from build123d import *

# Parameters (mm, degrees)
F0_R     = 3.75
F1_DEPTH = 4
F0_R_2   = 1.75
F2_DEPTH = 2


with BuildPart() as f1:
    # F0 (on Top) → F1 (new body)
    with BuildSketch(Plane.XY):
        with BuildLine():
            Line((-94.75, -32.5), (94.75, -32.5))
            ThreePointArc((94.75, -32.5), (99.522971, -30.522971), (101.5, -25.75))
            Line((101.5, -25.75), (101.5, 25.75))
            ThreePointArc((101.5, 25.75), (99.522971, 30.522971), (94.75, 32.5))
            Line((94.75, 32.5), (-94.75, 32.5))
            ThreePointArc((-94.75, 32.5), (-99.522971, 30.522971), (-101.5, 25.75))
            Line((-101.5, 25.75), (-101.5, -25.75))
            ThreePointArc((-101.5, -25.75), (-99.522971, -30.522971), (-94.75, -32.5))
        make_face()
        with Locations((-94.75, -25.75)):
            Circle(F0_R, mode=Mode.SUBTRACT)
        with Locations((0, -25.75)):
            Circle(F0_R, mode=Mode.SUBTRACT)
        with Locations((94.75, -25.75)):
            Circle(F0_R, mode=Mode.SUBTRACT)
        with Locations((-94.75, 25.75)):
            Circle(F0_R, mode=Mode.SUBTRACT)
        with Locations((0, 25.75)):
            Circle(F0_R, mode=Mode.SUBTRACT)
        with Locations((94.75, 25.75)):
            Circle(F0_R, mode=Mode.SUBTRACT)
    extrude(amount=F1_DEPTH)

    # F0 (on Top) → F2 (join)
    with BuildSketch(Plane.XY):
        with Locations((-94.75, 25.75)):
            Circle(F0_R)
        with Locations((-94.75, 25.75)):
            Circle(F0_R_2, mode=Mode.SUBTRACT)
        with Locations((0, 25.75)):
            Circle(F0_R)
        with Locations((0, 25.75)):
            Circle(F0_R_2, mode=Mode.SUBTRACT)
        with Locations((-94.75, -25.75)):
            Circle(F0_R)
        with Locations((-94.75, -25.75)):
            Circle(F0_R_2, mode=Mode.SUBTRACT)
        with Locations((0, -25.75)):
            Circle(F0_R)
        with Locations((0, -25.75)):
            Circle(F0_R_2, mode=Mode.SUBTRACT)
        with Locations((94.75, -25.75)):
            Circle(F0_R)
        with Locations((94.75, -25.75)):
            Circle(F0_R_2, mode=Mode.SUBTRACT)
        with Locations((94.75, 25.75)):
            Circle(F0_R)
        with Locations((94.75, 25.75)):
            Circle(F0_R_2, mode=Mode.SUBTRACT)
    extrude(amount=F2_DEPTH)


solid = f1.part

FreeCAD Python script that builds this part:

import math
import FreeCAD as App
import Part
import Sketcher
from FreeCAD import Vector

doc = App.newDocument("Part")
body = doc.addObject("PartDesign::Body", "Body")

sketch1 = body.newObject("Sketcher::SketchObject", "Sketch")
sketch1.AttachmentSupport = (doc.getObject("XY_Plane"), [""])
sketch1.MapMode = "FlatFace"
sketch1.addGeometry([
    Part.LineSegment(Vector(-94.8, -32.5, 0), Vector(94.8, -32.5, 0)),
    Part.ArcOfCircle(Part.Circle(Vector(94.8, -25.8, 0), Vector(0, 0, 1), 6.7), math.radians(-90), math.radians(0)),
    Part.LineSegment(Vector(101.5, -25.8, 0), Vector(101.5, 25.8, 0)),
    Part.ArcOfCircle(Part.Circle(Vector(94.8, 25.8, 0), Vector(0, 0, 1), 6.7), math.radians(0), math.radians(90)),
    Part.LineSegment(Vector(94.8, 32.5, 0), Vector(-94.8, 32.5, 0)),
    Part.ArcOfCircle(Part.Circle(Vector(-94.8, 25.8, 0), Vector(0, 0, 1), 6.7), math.radians(90), math.radians(180)),
    Part.LineSegment(Vector(-101.5, 25.8, 0), Vector(-101.5, -25.8, 0)),
    Part.ArcOfCircle(Part.Circle(Vector(-94.8, -25.8, 0), Vector(0, 0, 1), 6.7), math.radians(180), math.radians(270)),
    Part.Circle(Vector(-94.8, -25.8, 0), Vector(0, 0, 1), 3.8),
    Part.Circle(Vector(0, -25.8, 0), Vector(0, 0, 1), 3.8),
    Part.Circle(Vector(94.8, -25.8, 0), Vector(0, 0, 1), 3.8),
    Part.Circle(Vector(-94.8, 25.8, 0), Vector(0, 0, 1), 3.8),
    Part.Circle(Vector(0, 25.8, 0), Vector(0, 0, 1), 3.8),
    Part.Circle(Vector(94.8, 25.8, 0), Vector(0, 0, 1), 3.8),
], False)
sketch1.addConstraint([
    Sketcher.Constraint("Tangent", 0, 2, 1, 1),
    Sketcher.Constraint("Tangent", 1, 2, 2, 1),
    Sketcher.Constraint("Tangent", 2, 2, 3, 1),
    Sketcher.Constraint("Tangent", 3, 2, 4, 1),
    Sketcher.Constraint("Tangent", 4, 2, 5, 1),
    Sketcher.Constraint("Tangent", 5, 2, 6, 1),
    Sketcher.Constraint("Tangent", 6, 2, 7, 1),
    Sketcher.Constraint("Tangent", 7, 2, 0, 1),
    Sketcher.Constraint("Horizontal", 0),
    Sketcher.Constraint("Vertical", 2),
    Sketcher.Constraint("Horizontal", 4),
    Sketcher.Constraint("Vertical", 6),
    Sketcher.Constraint("Coincident", 8, 3, 7, 3),
    Sketcher.Constraint("Coincident", 10, 3, 1, 3),
    Sketcher.Constraint("Coincident", 11, 3, 5, 3),
    Sketcher.Constraint("Coincident", 13, 3, 3, 3),
    Sketcher.Constraint("Equal", 1, 3),
    Sketcher.Constraint("Equal", 3, 5),
    Sketcher.Constraint("Equal", 5, 7),
    Sketcher.Constraint("Equal", 8, 9),
    Sketcher.Constraint("Equal", 9, 10),
    Sketcher.Constraint("Equal", 10, 11),
    Sketcher.Constraint("Equal", 11, 12),
    Sketcher.Constraint("Equal", 12, 13),
    Sketcher.Constraint("Symmetric", 1, 3, 5, 3, -1, 1),
    Sketcher.Constraint("Symmetric", 9, 3, 12, 3, -1, 1),
    Sketcher.Constraint("PointOnObject", 9, 3, -2),
    Sketcher.Constraint("Horizontal", 8, 3, 9, 3),
    Sketcher.Constraint("Diameter", 8, 7.5),
    Sketcher.Constraint("Radius", 1, 6.749999),
    Sketcher.Constraint("DistanceX", 0, 1, 0, 2, 189.5),
    Sketcher.Constraint("DistanceY", 2, 1, 2, 2, 51.5),
])
pad1 = body.newObject("PartDesign::Pad", "Pad")
pad1.Profile = sketch1
pad1.Length = 4

sketch2 = body.newObject("Sketcher::SketchObject", "Sketch001")
sketch2.AttachmentSupport = (doc.getObject("XY_Plane"), [""])
sketch2.MapMode = "FlatFace"
sketch2.addGeometry([
    Part.Circle(Vector(-94.8, 25.8, 0), Vector(0, 0, 1), 3.8),
    Part.Circle(Vector(-94.8, 25.8, 0), Vector(0, 0, 1), 1.8),
    Part.Circle(Vector(0, 25.8, 0), Vector(0, 0, 1), 3.8),
    Part.Circle(Vector(0, 25.8, 0), Vector(0, 0, 1), 1.8),
    Part.Circle(Vector(-94.8, -25.8, 0), Vector(0, 0, 1), 3.8),
    Part.Circle(Vector(-94.8, -25.8, 0), Vector(0, 0, 1), 1.8),
    Part.Circle(Vector(0, -25.8, 0), Vector(0, 0, 1), 3.8),
    Part.Circle(Vector(0, -25.8, 0), Vector(0, 0, 1), 1.8),
    Part.Circle(Vector(94.8, -25.8, 0), Vector(0, 0, 1), 3.8),
    Part.Circle(Vector(94.8, -25.8, 0), Vector(0, 0, 1), 1.8),
    Part.Circle(Vector(94.8, 25.8, 0), Vector(0, 0, 1), 3.8),
    Part.Circle(Vector(94.8, 25.8, 0), Vector(0, 0, 1), 1.8),
], False)
sketch2.addConstraint([
    Sketcher.Constraint("Coincident", 1, 3, 0, 3),
    Sketcher.Constraint("Coincident", 3, 3, 2, 3),
    Sketcher.Constraint("Coincident", 5, 3, 4, 3),
    Sketcher.Constraint("Coincident", 7, 3, 6, 3),
    Sketcher.Constraint("Coincident", 9, 3, 8, 3),
    Sketcher.Constraint("Coincident", 11, 3, 10, 3),
    Sketcher.Constraint("Equal", 0, 2),
    Sketcher.Constraint("Equal", 1, 3),
    Sketcher.Constraint("Equal", 2, 4),
    Sketcher.Constraint("Equal", 3, 5),
    Sketcher.Constraint("Equal", 4, 6),
    Sketcher.Constraint("Equal", 5, 7),
    Sketcher.Constraint("Equal", 6, 8),
    Sketcher.Constraint("Equal", 7, 9),
    Sketcher.Constraint("Equal", 8, 10),
    Sketcher.Constraint("Equal", 9, 11),
    Sketcher.Constraint("Symmetric", 2, 3, 6, 3, -1, 1),
    Sketcher.Constraint("Symmetric", 0, 3, 8, 3, -1, 1),
    Sketcher.Constraint("Symmetric", 4, 3, 10, 3, -1, 1),
    Sketcher.Constraint("Symmetric", 4, 3, 8, 3, -2),
    Sketcher.Constraint("PointOnObject", 2, 3, -2),
    Sketcher.Constraint("Horizontal", 1, 3, 2, 3),
    Sketcher.Constraint("Diameter", 0, 7.5),
    Sketcher.Constraint("Diameter", 1, 3.5),
    Sketcher.Constraint("DistanceY", 4, 3, 0, 3, 51.5),
    Sketcher.Constraint("DistanceX", 4, 3, 8, 3, 189.5),
])
pad2 = body.newObject("PartDesign::Pad", "Pad001")
pad2.Profile = sketch2
pad2.Length = 2

doc.recompute()
